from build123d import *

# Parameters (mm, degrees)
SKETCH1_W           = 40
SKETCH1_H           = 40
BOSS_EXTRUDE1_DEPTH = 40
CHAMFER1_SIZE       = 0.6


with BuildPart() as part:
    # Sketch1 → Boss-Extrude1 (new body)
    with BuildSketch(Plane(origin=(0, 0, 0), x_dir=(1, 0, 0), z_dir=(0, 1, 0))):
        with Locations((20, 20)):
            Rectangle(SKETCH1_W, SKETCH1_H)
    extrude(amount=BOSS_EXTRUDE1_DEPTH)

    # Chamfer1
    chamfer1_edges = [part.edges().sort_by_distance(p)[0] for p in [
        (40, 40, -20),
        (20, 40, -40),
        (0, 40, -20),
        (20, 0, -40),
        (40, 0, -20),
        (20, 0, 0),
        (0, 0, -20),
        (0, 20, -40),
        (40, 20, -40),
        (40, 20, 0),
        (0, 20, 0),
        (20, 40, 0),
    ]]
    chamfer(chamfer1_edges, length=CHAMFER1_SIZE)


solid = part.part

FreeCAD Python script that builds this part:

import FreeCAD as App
import Part
import Sketcher
from FreeCAD import Vector
Q = App.Units.Quantity

doc = App.newDocument("Part")
params = doc.addObject("Spreadsheet::Sheet", "Params")
for row, (alias, value) in enumerate([
    ("sketch1_width", "40 mm"),
    ("pad1_length", "40 mm"),
    ("chamfer_size", "0.6 mm"),
], start=1):
    params.set(f"A{row}", alias)
    params.set(f"B{row}", "=" + value)
    params.setAlias(f"B{row}", alias)

body = doc.addObject("PartDesign::Body", "Body")

# Sketch on XZ plane
sketch1 = body.newObject("Sketcher::SketchObject", "Sketch")
sketch1.AttachmentSupport = (doc.getObject("XZ_Plane"), [""])
sketch1.MapMode = "FlatFace"
sketch1.addGeometry(Part.LineSegment(Vector(0, -40, 0), Vector(0, 0, 0)), False)
sketch1.addGeometry(Part.LineSegment(Vector(0, 0, 0), Vector(40, 0, 0)), False)
sketch1.addGeometry(Part.LineSegment(Vector(40, 0, 0), Vector(40, -40, 0)), False)
sketch1.addGeometry(Part.LineSegment(Vector(40, -40, 0), Vector(0, -40, 0)), False)
sketch1.addConstraint(Sketcher.Constraint("Coincident", 0, 2, 1, 1))
sketch1.addConstraint(Sketcher.Constraint("Coincident", 1, 2, 2, 1))
sketch1.addConstraint(Sketcher.Constraint("Coincident", 2, 2, 3, 1))
sketch1.addConstraint(Sketcher.Constraint("Coincident", 3, 2, 0, 1))
sketch1.addConstraint(Sketcher.Constraint("Vertical", 0))
sketch1.addConstraint(Sketcher.Constraint("Horizontal", 1))
sketch1.addConstraint(Sketcher.Constraint("Vertical", 2))
sketch1.addConstraint(Sketcher.Constraint("Horizontal", 3))
sketch1.addConstraint(Sketcher.Constraint("Coincident", 0, 2, -1, 1))
sketch1.addConstraint(Sketcher.Constraint("Equal", 3, 0))
sketch1.addConstraint(Sketcher.Constraint("DistanceX", 1, 1, 1, 2, Q("40 mm")))
sketch1.setExpression("Constraints[10]", "Params.sketch1_width")
pad1 = body.newObject("PartDesign::Pad", "Pad")
pad1.Profile = sketch1
pad1.setExpression("Length", "Params.pad1_length")
pad1.Reversed = True
doc.recompute()

chamfer = body.newObject("PartDesign::Chamfer", "Chamfer")
chamfer.Base = (pad1, ["Edge1"])
chamfer.UseAllEdges = True
chamfer.setExpression("Size", "Params.chamfer_size")

doc.recompute()
